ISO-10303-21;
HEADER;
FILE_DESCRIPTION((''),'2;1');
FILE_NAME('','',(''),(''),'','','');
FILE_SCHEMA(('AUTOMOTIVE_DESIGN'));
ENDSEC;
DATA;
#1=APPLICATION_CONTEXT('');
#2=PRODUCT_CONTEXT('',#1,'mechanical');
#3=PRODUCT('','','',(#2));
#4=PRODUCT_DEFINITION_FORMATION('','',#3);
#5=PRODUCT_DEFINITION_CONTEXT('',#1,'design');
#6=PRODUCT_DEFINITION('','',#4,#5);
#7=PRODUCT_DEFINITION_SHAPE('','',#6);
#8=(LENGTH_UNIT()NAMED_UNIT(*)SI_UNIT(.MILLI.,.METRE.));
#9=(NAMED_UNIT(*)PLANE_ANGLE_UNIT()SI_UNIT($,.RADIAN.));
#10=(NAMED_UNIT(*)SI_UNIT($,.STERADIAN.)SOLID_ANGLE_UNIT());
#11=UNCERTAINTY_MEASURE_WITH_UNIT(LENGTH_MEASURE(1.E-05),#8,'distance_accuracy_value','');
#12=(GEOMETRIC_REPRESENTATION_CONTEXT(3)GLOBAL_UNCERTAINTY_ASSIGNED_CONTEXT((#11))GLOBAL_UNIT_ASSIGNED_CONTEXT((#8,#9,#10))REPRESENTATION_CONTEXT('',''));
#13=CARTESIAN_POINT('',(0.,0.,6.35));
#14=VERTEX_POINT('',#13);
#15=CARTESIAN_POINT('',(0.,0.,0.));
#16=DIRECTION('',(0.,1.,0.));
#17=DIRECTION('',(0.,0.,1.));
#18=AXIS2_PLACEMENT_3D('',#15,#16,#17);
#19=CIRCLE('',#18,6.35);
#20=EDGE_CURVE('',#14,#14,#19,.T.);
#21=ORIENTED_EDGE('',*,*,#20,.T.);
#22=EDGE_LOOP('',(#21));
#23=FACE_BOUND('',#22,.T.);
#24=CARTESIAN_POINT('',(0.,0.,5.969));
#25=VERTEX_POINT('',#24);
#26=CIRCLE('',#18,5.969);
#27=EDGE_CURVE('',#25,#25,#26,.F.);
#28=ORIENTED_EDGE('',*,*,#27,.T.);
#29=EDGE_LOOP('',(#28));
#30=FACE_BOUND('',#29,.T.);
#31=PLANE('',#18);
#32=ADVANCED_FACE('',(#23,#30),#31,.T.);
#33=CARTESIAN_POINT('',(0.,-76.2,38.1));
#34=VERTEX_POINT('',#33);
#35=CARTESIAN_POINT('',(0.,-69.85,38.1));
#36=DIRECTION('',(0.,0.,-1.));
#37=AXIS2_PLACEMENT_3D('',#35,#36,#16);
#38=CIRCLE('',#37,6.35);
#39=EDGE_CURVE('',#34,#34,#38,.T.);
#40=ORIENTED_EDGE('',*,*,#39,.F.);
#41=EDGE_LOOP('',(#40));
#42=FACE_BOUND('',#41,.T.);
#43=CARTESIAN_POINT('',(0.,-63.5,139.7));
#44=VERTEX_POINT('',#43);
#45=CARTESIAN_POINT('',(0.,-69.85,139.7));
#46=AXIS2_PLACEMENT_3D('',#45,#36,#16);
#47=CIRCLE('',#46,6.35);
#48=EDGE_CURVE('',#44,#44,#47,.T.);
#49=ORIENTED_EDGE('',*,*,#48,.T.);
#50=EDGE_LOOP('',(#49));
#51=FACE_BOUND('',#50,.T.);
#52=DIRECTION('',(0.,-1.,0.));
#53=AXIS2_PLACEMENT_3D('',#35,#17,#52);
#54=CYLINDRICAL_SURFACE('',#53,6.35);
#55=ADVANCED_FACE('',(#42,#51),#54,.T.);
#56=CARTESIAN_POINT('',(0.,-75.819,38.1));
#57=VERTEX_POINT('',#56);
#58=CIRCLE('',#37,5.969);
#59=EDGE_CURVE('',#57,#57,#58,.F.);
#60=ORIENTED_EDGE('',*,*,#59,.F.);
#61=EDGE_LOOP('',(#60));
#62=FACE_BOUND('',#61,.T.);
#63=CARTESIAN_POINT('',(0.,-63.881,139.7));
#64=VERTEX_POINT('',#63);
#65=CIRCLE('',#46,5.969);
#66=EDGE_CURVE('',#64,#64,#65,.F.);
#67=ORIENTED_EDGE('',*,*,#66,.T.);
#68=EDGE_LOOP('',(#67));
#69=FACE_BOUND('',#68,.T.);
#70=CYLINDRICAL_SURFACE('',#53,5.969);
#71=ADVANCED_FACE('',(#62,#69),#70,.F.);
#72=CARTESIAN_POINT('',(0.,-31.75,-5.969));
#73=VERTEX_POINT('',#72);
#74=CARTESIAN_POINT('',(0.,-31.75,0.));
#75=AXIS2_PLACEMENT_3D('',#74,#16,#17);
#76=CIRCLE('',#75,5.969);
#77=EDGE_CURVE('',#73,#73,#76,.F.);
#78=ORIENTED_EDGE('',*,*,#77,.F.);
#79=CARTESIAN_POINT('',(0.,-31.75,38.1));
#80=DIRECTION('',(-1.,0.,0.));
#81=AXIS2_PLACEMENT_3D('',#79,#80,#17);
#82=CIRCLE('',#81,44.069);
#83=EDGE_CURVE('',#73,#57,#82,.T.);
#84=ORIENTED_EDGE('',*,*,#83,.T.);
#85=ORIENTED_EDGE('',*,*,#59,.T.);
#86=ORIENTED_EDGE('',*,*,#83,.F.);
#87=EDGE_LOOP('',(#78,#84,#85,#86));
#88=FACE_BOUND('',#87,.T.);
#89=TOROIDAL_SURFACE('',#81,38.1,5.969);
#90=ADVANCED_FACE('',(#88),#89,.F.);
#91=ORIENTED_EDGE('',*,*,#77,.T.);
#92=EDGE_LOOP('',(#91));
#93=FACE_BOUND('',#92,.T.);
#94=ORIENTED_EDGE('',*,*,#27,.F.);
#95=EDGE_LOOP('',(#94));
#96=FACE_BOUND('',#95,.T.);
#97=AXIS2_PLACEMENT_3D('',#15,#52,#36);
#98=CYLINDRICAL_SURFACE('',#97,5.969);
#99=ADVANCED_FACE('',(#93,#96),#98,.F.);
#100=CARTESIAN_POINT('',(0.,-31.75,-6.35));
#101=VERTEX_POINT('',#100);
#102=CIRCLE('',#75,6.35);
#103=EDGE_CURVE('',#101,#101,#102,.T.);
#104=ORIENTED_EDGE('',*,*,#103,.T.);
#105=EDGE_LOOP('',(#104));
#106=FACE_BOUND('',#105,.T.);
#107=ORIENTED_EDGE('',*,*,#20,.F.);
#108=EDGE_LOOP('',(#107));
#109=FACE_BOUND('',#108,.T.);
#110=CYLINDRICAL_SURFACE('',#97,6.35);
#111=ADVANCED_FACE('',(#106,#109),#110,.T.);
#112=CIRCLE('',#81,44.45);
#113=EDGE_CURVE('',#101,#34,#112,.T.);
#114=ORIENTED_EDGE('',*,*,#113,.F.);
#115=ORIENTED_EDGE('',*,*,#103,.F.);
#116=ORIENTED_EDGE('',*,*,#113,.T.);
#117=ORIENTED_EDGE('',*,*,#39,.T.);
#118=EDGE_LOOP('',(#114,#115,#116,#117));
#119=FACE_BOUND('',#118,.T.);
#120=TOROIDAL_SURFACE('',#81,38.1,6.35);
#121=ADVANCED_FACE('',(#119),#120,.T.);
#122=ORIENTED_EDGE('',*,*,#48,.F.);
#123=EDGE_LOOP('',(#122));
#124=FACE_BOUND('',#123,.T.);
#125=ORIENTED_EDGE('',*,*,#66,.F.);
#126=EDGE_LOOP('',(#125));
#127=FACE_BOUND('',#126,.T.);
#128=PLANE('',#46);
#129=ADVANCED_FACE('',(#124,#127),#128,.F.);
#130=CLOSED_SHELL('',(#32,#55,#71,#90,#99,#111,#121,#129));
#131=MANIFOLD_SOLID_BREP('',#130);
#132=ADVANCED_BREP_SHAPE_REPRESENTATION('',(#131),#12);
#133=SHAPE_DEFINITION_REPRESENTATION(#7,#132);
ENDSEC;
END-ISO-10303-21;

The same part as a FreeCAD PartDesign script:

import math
import FreeCAD as App
import Part
import Sketcher
from FreeCAD import Vector
Q = App.Units.Quantity

doc = App.newDocument("Part")
body = doc.addObject("PartDesign::Body", "Body")

sketch1 = body.newObject("Sketcher::SketchObject", "Sketch")
sketch1.AttachmentSupport = (doc.getObject("XZ_Plane"), [""])
sketch1.MapMode = "FlatFace"
sketch1.addGeometry(Part.Circle(Vector(0, 0, 0), Vector(0, 0, 1), 6), False)
sketch1.addGeometry(Part.Circle(Vector(0, 0, 0), Vector(0, 0, 1), 6), False)
sketch1.addConstraint(Sketcher.Constraint("Coincident", 0, 3, -1, 1))
sketch1.addConstraint(Sketcher.Constraint("Coincident", 1, 3, -1, 1))
sketch1.addConstraint(Sketcher.Constraint("Diameter", 0, Q("0.5 in")))
sketch1.addConstraint(Sketcher.Constraint("Diameter", 1, Q("0.47 in")))

sketch2 = body.newObject("Sketcher::SketchObject", "Sketch001")
sketch2.AttachmentSupport = (doc.getObject("YZ_Plane"), [""])
sketch2.MapMode = "FlatFace"
sketch2.addGeometry(Part.LineSegment(Vector(0, 0, 0), Vector(-32, 0, 0)), False)
sketch2.addGeometry(Part.ArcOfCircle(Part.Circle(Vector(-32, 38, 0), Vector(0, 0, 1), 38), math.radians(-180), math.radians(-90)), False)
sketch2.addGeometry(Part.LineSegment(Vector(-70, 38, 0), Vector(-70, 140, 0)), False)
sketch2.addConstraint(Sketcher.Constraint("Tangent", 0, 2, 1, 2))
sketch2.addConstraint(Sketcher.Constraint("Tangent", 1, 1, 2, 1))
sketch2.addConstraint(Sketcher.Constraint("Horizontal", 0))
sketch2.addConstraint(Sketcher.Constraint("Vertical", 2))
sketch2.addConstraint(Sketcher.Constraint("Coincident", 0, 1, -1, 1))
sketch2.addConstraint(Sketcher.Constraint("Radius", 1, Q("1.5 in")))
sketch2.addConstraint(Sketcher.Constraint("DistanceY", 2, 1, 2, 2, Q("4 in")))
sketch2.addConstraint(Sketcher.Constraint("DistanceX", 0, 2, 0, 1, Q("1.25 in")))
doc.recompute()

additivepipe = body.newObject("PartDesign::AdditivePipe", "AdditivePipe")
additivepipe.Profile = sketch1
additivepipe.Spine = (sketch2, ["Edge1", "Edge2", "Edge3"])

doc.recompute()
